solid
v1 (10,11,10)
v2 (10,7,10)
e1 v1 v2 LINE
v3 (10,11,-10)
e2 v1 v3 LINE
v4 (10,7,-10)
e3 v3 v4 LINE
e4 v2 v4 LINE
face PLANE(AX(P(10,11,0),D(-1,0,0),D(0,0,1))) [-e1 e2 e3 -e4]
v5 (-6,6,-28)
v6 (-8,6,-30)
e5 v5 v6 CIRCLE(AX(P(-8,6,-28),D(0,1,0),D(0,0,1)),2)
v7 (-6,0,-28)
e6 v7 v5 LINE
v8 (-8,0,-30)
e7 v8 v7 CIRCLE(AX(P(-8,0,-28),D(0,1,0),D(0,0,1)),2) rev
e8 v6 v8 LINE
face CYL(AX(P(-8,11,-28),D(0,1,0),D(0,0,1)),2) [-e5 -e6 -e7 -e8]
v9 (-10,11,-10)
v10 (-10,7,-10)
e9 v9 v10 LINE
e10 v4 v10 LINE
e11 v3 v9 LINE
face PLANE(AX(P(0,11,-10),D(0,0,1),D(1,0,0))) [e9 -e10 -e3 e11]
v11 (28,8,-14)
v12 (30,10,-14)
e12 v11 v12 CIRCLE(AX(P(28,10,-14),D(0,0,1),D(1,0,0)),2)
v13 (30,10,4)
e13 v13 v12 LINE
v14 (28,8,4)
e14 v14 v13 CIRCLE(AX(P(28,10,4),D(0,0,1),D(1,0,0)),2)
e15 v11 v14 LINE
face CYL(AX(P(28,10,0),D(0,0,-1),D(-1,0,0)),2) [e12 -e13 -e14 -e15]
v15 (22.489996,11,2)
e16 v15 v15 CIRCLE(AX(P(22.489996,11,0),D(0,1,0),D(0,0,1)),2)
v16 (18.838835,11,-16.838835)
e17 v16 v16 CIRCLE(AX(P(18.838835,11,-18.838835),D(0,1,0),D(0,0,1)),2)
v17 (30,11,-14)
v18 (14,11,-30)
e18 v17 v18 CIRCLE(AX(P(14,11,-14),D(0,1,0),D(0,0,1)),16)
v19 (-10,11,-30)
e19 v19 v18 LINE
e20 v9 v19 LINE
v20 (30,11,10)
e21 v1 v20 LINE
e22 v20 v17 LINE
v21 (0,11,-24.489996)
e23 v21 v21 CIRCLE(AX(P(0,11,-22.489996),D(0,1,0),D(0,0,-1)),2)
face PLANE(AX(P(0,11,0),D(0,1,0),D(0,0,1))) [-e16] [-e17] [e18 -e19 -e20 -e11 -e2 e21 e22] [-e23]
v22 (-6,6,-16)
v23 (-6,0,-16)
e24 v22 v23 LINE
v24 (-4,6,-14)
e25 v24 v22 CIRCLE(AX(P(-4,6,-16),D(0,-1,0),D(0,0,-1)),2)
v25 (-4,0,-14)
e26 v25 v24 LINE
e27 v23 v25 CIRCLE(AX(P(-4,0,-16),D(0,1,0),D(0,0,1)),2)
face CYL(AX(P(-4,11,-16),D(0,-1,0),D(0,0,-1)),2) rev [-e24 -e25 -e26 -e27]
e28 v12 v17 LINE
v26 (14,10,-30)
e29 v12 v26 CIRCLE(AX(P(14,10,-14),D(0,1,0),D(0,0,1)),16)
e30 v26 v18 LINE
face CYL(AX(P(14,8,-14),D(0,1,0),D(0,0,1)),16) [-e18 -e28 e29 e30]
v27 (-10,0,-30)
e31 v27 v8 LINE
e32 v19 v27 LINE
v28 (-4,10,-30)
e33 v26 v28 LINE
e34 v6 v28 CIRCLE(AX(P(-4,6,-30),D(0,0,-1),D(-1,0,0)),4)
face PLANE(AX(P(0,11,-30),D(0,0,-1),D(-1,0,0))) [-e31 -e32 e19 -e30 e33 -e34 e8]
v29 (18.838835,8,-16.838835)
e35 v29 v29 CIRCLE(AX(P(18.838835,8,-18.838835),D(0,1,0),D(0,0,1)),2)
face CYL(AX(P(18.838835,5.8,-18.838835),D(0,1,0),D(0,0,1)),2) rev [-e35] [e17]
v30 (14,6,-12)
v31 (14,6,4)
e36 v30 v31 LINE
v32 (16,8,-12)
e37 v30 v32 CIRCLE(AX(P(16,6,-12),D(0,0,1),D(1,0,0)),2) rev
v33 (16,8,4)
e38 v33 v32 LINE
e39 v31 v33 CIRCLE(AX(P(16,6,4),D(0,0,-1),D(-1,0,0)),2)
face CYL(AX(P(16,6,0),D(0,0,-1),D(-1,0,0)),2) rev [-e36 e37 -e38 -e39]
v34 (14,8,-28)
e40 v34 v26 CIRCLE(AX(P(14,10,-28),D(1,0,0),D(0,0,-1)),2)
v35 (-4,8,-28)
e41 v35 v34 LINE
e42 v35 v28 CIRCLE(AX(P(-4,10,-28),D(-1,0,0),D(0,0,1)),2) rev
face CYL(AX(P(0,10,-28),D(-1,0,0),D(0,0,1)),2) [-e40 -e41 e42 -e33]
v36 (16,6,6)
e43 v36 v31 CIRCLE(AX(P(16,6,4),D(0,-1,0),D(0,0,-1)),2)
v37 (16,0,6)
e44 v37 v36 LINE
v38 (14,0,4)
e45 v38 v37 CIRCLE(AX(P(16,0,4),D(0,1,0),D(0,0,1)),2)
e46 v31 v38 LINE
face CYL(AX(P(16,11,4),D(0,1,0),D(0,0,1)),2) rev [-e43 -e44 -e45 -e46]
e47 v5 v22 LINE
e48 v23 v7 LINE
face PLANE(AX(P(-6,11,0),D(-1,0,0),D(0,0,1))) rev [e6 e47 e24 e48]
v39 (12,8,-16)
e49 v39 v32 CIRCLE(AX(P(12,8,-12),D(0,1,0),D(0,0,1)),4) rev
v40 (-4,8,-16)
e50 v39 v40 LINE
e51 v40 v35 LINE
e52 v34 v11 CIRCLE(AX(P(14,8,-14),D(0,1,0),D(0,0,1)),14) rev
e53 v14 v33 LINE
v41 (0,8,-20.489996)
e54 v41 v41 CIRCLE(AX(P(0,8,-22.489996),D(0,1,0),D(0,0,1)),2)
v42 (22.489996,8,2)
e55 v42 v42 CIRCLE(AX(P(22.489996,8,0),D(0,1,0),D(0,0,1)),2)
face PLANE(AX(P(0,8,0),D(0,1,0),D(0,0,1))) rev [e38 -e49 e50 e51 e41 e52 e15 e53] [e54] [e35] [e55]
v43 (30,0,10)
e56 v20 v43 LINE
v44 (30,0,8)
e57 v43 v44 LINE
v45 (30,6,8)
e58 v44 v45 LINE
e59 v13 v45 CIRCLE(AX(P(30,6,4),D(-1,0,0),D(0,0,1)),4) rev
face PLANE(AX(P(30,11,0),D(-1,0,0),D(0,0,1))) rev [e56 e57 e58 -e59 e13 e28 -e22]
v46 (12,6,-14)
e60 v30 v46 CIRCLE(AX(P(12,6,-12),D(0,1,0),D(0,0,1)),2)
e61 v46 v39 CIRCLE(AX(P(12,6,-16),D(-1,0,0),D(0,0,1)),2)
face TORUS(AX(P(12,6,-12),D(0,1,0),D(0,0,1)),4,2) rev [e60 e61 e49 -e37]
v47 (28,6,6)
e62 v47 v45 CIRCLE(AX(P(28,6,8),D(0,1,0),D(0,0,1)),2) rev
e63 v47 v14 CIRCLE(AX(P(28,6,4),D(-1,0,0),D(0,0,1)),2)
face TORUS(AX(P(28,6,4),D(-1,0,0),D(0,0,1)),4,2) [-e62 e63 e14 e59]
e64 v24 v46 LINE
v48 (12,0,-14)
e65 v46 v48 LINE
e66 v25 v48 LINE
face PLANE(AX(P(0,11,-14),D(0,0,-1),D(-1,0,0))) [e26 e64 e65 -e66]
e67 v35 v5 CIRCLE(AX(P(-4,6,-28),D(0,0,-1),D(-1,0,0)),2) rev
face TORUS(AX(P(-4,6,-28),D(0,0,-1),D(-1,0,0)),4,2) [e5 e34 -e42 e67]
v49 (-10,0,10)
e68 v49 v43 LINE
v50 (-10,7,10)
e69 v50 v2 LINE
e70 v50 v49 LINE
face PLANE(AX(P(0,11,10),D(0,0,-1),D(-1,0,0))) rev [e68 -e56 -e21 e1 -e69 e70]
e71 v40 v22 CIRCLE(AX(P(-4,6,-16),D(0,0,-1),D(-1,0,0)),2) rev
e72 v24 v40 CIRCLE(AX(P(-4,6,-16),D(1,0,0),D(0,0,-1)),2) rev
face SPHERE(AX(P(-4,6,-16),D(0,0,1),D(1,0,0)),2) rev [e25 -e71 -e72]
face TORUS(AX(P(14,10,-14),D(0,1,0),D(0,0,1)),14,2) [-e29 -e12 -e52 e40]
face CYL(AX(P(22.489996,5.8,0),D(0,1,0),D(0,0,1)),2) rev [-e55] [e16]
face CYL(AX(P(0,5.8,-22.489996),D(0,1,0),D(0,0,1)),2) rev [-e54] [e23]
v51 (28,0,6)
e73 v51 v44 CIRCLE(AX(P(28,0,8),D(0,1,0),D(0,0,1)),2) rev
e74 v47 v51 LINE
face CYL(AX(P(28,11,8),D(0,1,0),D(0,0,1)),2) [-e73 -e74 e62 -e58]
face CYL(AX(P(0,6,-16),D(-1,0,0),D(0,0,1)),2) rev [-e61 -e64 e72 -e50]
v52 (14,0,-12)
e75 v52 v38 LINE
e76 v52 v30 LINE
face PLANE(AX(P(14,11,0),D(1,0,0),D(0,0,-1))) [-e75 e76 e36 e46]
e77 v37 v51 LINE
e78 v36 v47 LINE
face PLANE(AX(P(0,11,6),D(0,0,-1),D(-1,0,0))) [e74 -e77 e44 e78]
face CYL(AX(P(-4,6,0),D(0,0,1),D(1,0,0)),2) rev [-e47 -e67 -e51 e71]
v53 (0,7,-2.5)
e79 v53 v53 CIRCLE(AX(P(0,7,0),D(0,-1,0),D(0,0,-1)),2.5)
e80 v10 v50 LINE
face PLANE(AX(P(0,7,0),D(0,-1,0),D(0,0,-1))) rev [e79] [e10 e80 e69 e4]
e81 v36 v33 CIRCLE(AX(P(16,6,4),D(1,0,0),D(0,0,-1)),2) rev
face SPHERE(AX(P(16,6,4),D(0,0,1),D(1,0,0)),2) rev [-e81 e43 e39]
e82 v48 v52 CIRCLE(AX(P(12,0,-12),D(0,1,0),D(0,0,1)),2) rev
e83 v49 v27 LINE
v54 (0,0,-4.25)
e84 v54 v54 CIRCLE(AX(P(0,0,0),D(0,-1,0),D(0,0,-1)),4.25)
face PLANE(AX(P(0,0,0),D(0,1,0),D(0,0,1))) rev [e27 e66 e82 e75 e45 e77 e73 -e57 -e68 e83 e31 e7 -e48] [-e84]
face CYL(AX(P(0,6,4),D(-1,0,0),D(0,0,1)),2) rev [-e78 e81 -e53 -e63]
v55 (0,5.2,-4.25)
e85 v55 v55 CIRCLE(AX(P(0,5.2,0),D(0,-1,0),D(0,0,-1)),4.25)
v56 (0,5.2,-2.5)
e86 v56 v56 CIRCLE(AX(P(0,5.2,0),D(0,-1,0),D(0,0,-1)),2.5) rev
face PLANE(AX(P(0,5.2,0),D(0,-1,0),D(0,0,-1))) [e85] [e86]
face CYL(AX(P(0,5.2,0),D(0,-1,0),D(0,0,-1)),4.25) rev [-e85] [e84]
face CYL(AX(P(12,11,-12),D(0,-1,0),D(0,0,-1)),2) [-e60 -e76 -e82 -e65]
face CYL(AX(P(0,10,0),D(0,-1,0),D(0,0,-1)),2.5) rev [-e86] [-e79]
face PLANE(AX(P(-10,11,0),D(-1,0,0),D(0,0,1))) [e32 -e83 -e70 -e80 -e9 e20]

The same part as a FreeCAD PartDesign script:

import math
import FreeCAD as App
import Part
import Sketcher

V = App.Vector
Q = App.Units.Quantity


def edges_at(feature, points):
    """Names of the edges that pass closest to the given points."""
    edges = feature.Shape.Edges
    near = lambda p: min(range(len(edges)), key=lambda i: edges[i].distToShape(Part.Vertex(*p))[0])
    return sorted({f"Edge{near(p) + 1}" for p in points})

doc = App.newDocument("Part")
body = doc.addObject("PartDesign::Body", "Body")

sketch1 = body.newObject("Sketcher::SketchObject", "Sketch")
sketch1.AttachmentSupport = (doc.getObject("XZ_Plane"), [""])
sketch1.MapMode = "FlatFace"
sketch1.addGeometry(Part.LineSegment(V(-10, -10, 0), V(10, -10, 0)), False)
sketch1.addGeometry(Part.LineSegment(V(10, -10, 0), V(10, 10, 0)), False)
sketch1.addGeometry(Part.LineSegment(V(10, 10, 0), V(30, 10, 0)), False)
sketch1.addGeometry(Part.LineSegment(V(30, 10, 0), V(30, 6, 0)), False)
sketch1.addGeometry(Part.LineSegment(V(30, 6, 0), V(14, 6, 0)), False)
sketch1.addGeometry(Part.LineSegment(V(14, 6, 0), V(14, -14, 0)), False)
sketch1.addGeometry(Part.LineSegment(V(14, -14, 0), V(-6, -14, 0)), False)
sketch1.addGeometry(Part.LineSegment(V(-6, -14, 0), V(-6, -30, 0)), False)
sketch1.addGeometry(Part.LineSegment(V(-6, -30, 0), V(-10, -30, 0)), False)
sketch1.addGeometry(Part.LineSegment(V(-10, -30, 0), V(-10, -10, 0)), False)
sketch1.addConstraint(Sketcher.Constraint("Coincident", 0, 2, 1, 1))
sketch1.addConstraint(Sketcher.Constraint("Coincident", 1, 2, 2, 1))
sketch1.addConstraint(Sketcher.Constraint("Coincident", 2, 2, 3, 1))
sketch1.addConstraint(Sketcher.Constraint("Coincident", 3, 2, 4, 1))
sketch1.addConstraint(Sketcher.Constraint("Coincident", 4, 2, 5, 1))
sketch1.addConstraint(Sketcher.Constraint("Coincident", 5, 2, 6, 1))
sketch1.addConstraint(Sketcher.Constraint("Coincident", 6, 2, 7, 1))
sketch1.addConstraint(Sketcher.Constraint("Coincident", 7, 2, 8, 1))
sketch1.addConstraint(Sketcher.Constraint("Coincident", 8, 2, 9, 1))
sketch1.addConstraint(Sketcher.Constraint("Coincident", 9, 2, 0, 1))
sketch1.addConstraint(Sketcher.Constraint("Horizontal", 0))
sketch1.addConstraint(Sketcher.Constraint("Vertical", 1))
sketch1.addConstraint(Sketcher.Constraint("Horizontal", 2))
sketch1.addConstraint(Sketcher.Constraint("Vertical", 3))
sketch1.addConstraint(Sketcher.Constraint("Horizontal", 4))
sketch1.addConstraint(Sketcher.Constraint("Vertical", 5))
sketch1.addConstraint(Sketcher.Constraint("Horizontal", 6))
sketch1.addConstraint(Sketcher.Constraint("Vertical", 7))
sketch1.addConstraint(Sketcher.Constraint("Horizontal", 8))
sketch1.addConstraint(Sketcher.Constraint("Vertical", 9))
sketch1.addConstraint(Sketcher.Constraint("Symmetric", 1, 2, 9, 2, -1, 1))
sketch1.addConstraint(Sketcher.Constraint("Equal", 0, 2))
sketch1.addConstraint(Sketcher.Constraint("Equal", 2, 6))
sketch1.addConstraint(Sketcher.Constraint("Equal", 6, 1))
sketch1.addConstraint(Sketcher.Constraint("Equal", 8, 3))
sketch1.addConstraint(Sketcher.Constraint("Equal", 1, 5))
sketch1.addConstraint(Sketcher.Constraint("Equal", 4, 7))
sketch1.addConstraint(Sketcher.Constraint("DistanceX", 0, 1, 0, 2, Q("20 mm")))
sketch1.addConstraint(Sketcher.Constraint("DistanceX", 4, 2, 4, 1, Q("16 mm")))
pad1 = body.newObject("PartDesign::Pad", "Pad")
pad1.Profile = sketch1
pad1.Length = 11
pad1.Reversed = True

sketch2 = body.newObject("Sketcher::SketchObject", "Sketch001")
sketch2.AttachmentSupport = (doc.getObject("XZ_Plane"), [""])
sketch2.MapMode = "FlatFace"
sketch2.addGeometry(Part.LineSegment(V(-10, -10, 0), V(-10, 10, 0)), False)
sketch2.addGeometry(Part.LineSegment(V(-10, 10, 0), V(10, 10, 0)), False)
sketch2.addGeometry(Part.LineSegment(V(10, 10, 0), V(10, -10, 0)), False)
sketch2.addGeometry(Part.LineSegment(V(10, -10, 0), V(-10, -10, 0)), False)
sketch2.addConstraint(Sketcher.Constraint("Coincident", 0, 2, 1, 1))
sketch2.addConstraint(Sketcher.Constraint("Coincident", 1, 2, 2, 1))
sketch2.addConstraint(Sketcher.Constraint("Coincident", 2, 2, 3, 1))
sketch2.addConstraint(Sketcher.Constraint("Coincident", 3, 2, 0, 1))
sketch2.addConstraint(Sketcher.Constraint("Vertical", 0))
sketch2.addConstraint(Sketcher.Constraint("Horizontal", 1))
sketch2.addConstraint(Sketcher.Constraint("Vertical", 2))
sketch2.addConstraint(Sketcher.Constraint("Horizontal", 3))
sketch2.addConstraint(Sketcher.Constraint("Symmetric", 0, 2, 2, 2, -1, 1))
sketch2.addConstraint(Sketcher.Constraint("Equal", 3, 0))
sketch2.addConstraint(Sketcher.Constraint("DistanceX", 1, 1, 1, 2, Q("20 mm")))
pad2 = body.newObject("PartDesign::Pad", "Pad001")
pad2.Profile = sketch2
pad2.Length = 7
pad2.Reversed = True

sketch3 = body.newObject("Sketcher::SketchObject", "Sketch002")
sketch3.AttachmentSupport = (doc.getObject("XZ_Plane"), [""])
sketch3.MapMode = "FlatFace"
sketch3.AttachmentOffset = App.Placement(V(0, 0, -11), App.Rotation())
sketch3.addGeometry(Part.LineSegment(V(-6, -30, 0), V(-6, -14, 0)), False)
sketch3.addGeometry(Part.LineSegment(V(-6, -14, 0), V(14, -14, 0)), False)
sketch3.addGeometry(Part.LineSegment(V(14, -14, 0), V(14, 6, 0)), False)
sketch3.addGeometry(Part.LineSegment(V(14, 6, 0), V(30, 6, 0)), False)
sketch3.addGeometry(Part.LineSegment(V(30, 6, 0), V(30, -14, 0)), False)
sketch3.addGeometry(Part.ArcOfCircle(Part.Circle(V(14, -14, 0), V(0, 0, 1), 16), math.radians(-90), math.radians(0)), False)
sketch3.addGeometry(Part.LineSegment(V(14, -30, 0), V(-6, -30, 0)), False)
sketch3.addConstraint(Sketcher.Constraint("Coincident", 0, 2, 1, 1))
sketch3.addConstraint(Sketcher.Constraint("Coincident", 1, 2, 2, 1))
sketch3.addConstraint(Sketcher.Constraint("Coincident", 2, 2, 3, 1))
sketch3.addConstraint(Sketcher.Constraint("Coincident", 3, 2, 4, 1))
sketch3.addConstraint(Sketcher.Constraint("Tangent", 4, 2, 5, 2))
sketch3.addConstraint(Sketcher.Constraint("Tangent", 5, 1, 6, 1))
sketch3.addConstraint(Sketcher.Constraint("Coincident", 6, 2, 0, 1))
sketch3.addConstraint(Sketcher.Constraint("Vertical", 0))
sketch3.addConstraint(Sketcher.Constraint("Horizontal", 1))
sketch3.addConstraint(Sketcher.Constraint("Vertical", 2))
sketch3.addConstraint(Sketcher.Constraint("Horizontal", 3))
sketch3.addConstraint(Sketcher.Constraint("Vertical", 4))
sketch3.addConstraint(Sketcher.Constraint("Horizontal", 6))
sketch3.addConstraint(Sketcher.Constraint("Coincident", 1, 2, 5, 3))
sketch3.addConstraint(Sketcher.Constraint("Equal", 6, 2))
sketch3.addConstraint(Sketcher.Constraint("Radius", 5, Q("16 mm")))
sketch3.addConstraint(Sketcher.Constraint("DistanceX", 1, 1, 1, 2, Q("20 mm")))
sketch3.addConstraint(Sketcher.Constraint("DistanceX", -1, 1, 5, 3, Q("14 mm")))
sketch3.addConstraint(Sketcher.Constraint("DistanceY", 5, 3, -1, 1, Q("14 mm")))
pad3 = body.newObject("PartDesign::Pad", "Pad002")
pad3.Profile = sketch3
pad3.Length = 3
doc.recompute()

fillet = body.newObject("PartDesign::Fillet", "Fillet")
fillet.Base = (pad3, edges_at(pad3, [
    (-6, 4, -30),
    (-6, 4, -14),
    (14, 4, -14),
    (14, 4, 6),
    (30, 4, 6),
    (25.314, 8, -25.314),
    (30, 8, -4),
    (4, 8, -14),
    (-6, 8, -22),
    (4, 8, -30),
    (22, 8, 6),
    (14, 8, -4),
]))
fillet.Radius = 2

sketch4 = body.newObject("Sketcher::SketchObject", "Sketch003")
sketch4.AttachmentSupport = (doc.getObject("XZ_Plane"), [""])
sketch4.MapMode = "FlatFace"
sketch4.addGeometry(Part.Circle(V(0, 0, 0), V(0, 0, 1), 2.5), False)
sketch4.addConstraint(Sketcher.Constraint("Coincident", 0, 3, -1, 1))
sketch4.addConstraint(Sketcher.Constraint("Diameter", 0, Q("5 mm")))
pocket1 = body.newObject("PartDesign::Pocket", "Pocket")
pocket1.Profile = sketch4
pocket1.Length = 10

sketch5 = body.newObject("Sketcher::SketchObject", "Sketch004")
sketch5.AttachmentSupport = (doc.getObject("XZ_Plane"), [""])
sketch5.MapMode = "FlatFace"
sketch5.addGeometry(Part.Circle(V(0, 0, 0), V(0, 0, 1), 4.2), False)
sketch5.addConstraint(Sketcher.Constraint("Coincident", 0, 3, -1, 1))
sketch5.addConstraint(Sketcher.Constraint("Diameter", 0, Q("8.5 mm")))
pocket2 = body.newObject("PartDesign::Pocket", "Pocket001")
pocket2.Profile = sketch5
pocket2.Length = 5.2

sketch6 = body.newObject("Sketcher::SketchObject", "Sketch005")
sketch6.AttachmentSupport = (doc.getObject("XZ_Plane"), [""])
sketch6.MapMode = "FlatFace"
sketch6.AttachmentOffset = App.Placement(V(0, 0, -11), App.Rotation())
sketch6.addGeometry(Part.Circle(V(22.5, 0, 0), V(0, 0, 1), 2), False)
sketch6.addGeometry(Part.Circle(V(0, -22.5, 0), V(0, 0, 1), 2), False)
sketch6.addGeometry(Part.Circle(V(18.8, -18.8, 0), V(0, 0, 1), 2), False)
sketch6.addConstraint(Sketcher.Constraint("Equal", 0, 1))
sketch6.addConstraint(Sketcher.Constraint("Equal", 1, 2))
sketch6.addConstraint(Sketcher.Constraint("PointOnObject", 0, 3, -1))
sketch6.addConstraint(Sketcher.Constraint("PointOnObject", 1, 3, -2))
sketch6.addConstraint(Sketcher.Constraint("Diameter", 0, Q("4 mm")))
sketch6.addConstraint(Sketcher.Constraint("DistanceX", 2, 3, 0, 3, Q("3.651161 mm")))
sketch6.addConstraint(Sketcher.Constraint("DistanceY", 1, 3, 2, 3, Q("3.651161 mm")))
sketch6.addConstraint(Sketcher.Constraint("DistanceX", -1, 1, 0, 3, Q("22.489996 mm")))
sketch6.addConstraint(Sketcher.Constraint("DistanceY", 1, 3, -1, 1, Q("22.489996 mm")))
pocket3 = body.newObject("PartDesign::Pocket", "Pocket002")
pocket3.Profile = sketch6
pocket3.Length = 5.2
pocket3.Reversed = True

doc.recompute()
